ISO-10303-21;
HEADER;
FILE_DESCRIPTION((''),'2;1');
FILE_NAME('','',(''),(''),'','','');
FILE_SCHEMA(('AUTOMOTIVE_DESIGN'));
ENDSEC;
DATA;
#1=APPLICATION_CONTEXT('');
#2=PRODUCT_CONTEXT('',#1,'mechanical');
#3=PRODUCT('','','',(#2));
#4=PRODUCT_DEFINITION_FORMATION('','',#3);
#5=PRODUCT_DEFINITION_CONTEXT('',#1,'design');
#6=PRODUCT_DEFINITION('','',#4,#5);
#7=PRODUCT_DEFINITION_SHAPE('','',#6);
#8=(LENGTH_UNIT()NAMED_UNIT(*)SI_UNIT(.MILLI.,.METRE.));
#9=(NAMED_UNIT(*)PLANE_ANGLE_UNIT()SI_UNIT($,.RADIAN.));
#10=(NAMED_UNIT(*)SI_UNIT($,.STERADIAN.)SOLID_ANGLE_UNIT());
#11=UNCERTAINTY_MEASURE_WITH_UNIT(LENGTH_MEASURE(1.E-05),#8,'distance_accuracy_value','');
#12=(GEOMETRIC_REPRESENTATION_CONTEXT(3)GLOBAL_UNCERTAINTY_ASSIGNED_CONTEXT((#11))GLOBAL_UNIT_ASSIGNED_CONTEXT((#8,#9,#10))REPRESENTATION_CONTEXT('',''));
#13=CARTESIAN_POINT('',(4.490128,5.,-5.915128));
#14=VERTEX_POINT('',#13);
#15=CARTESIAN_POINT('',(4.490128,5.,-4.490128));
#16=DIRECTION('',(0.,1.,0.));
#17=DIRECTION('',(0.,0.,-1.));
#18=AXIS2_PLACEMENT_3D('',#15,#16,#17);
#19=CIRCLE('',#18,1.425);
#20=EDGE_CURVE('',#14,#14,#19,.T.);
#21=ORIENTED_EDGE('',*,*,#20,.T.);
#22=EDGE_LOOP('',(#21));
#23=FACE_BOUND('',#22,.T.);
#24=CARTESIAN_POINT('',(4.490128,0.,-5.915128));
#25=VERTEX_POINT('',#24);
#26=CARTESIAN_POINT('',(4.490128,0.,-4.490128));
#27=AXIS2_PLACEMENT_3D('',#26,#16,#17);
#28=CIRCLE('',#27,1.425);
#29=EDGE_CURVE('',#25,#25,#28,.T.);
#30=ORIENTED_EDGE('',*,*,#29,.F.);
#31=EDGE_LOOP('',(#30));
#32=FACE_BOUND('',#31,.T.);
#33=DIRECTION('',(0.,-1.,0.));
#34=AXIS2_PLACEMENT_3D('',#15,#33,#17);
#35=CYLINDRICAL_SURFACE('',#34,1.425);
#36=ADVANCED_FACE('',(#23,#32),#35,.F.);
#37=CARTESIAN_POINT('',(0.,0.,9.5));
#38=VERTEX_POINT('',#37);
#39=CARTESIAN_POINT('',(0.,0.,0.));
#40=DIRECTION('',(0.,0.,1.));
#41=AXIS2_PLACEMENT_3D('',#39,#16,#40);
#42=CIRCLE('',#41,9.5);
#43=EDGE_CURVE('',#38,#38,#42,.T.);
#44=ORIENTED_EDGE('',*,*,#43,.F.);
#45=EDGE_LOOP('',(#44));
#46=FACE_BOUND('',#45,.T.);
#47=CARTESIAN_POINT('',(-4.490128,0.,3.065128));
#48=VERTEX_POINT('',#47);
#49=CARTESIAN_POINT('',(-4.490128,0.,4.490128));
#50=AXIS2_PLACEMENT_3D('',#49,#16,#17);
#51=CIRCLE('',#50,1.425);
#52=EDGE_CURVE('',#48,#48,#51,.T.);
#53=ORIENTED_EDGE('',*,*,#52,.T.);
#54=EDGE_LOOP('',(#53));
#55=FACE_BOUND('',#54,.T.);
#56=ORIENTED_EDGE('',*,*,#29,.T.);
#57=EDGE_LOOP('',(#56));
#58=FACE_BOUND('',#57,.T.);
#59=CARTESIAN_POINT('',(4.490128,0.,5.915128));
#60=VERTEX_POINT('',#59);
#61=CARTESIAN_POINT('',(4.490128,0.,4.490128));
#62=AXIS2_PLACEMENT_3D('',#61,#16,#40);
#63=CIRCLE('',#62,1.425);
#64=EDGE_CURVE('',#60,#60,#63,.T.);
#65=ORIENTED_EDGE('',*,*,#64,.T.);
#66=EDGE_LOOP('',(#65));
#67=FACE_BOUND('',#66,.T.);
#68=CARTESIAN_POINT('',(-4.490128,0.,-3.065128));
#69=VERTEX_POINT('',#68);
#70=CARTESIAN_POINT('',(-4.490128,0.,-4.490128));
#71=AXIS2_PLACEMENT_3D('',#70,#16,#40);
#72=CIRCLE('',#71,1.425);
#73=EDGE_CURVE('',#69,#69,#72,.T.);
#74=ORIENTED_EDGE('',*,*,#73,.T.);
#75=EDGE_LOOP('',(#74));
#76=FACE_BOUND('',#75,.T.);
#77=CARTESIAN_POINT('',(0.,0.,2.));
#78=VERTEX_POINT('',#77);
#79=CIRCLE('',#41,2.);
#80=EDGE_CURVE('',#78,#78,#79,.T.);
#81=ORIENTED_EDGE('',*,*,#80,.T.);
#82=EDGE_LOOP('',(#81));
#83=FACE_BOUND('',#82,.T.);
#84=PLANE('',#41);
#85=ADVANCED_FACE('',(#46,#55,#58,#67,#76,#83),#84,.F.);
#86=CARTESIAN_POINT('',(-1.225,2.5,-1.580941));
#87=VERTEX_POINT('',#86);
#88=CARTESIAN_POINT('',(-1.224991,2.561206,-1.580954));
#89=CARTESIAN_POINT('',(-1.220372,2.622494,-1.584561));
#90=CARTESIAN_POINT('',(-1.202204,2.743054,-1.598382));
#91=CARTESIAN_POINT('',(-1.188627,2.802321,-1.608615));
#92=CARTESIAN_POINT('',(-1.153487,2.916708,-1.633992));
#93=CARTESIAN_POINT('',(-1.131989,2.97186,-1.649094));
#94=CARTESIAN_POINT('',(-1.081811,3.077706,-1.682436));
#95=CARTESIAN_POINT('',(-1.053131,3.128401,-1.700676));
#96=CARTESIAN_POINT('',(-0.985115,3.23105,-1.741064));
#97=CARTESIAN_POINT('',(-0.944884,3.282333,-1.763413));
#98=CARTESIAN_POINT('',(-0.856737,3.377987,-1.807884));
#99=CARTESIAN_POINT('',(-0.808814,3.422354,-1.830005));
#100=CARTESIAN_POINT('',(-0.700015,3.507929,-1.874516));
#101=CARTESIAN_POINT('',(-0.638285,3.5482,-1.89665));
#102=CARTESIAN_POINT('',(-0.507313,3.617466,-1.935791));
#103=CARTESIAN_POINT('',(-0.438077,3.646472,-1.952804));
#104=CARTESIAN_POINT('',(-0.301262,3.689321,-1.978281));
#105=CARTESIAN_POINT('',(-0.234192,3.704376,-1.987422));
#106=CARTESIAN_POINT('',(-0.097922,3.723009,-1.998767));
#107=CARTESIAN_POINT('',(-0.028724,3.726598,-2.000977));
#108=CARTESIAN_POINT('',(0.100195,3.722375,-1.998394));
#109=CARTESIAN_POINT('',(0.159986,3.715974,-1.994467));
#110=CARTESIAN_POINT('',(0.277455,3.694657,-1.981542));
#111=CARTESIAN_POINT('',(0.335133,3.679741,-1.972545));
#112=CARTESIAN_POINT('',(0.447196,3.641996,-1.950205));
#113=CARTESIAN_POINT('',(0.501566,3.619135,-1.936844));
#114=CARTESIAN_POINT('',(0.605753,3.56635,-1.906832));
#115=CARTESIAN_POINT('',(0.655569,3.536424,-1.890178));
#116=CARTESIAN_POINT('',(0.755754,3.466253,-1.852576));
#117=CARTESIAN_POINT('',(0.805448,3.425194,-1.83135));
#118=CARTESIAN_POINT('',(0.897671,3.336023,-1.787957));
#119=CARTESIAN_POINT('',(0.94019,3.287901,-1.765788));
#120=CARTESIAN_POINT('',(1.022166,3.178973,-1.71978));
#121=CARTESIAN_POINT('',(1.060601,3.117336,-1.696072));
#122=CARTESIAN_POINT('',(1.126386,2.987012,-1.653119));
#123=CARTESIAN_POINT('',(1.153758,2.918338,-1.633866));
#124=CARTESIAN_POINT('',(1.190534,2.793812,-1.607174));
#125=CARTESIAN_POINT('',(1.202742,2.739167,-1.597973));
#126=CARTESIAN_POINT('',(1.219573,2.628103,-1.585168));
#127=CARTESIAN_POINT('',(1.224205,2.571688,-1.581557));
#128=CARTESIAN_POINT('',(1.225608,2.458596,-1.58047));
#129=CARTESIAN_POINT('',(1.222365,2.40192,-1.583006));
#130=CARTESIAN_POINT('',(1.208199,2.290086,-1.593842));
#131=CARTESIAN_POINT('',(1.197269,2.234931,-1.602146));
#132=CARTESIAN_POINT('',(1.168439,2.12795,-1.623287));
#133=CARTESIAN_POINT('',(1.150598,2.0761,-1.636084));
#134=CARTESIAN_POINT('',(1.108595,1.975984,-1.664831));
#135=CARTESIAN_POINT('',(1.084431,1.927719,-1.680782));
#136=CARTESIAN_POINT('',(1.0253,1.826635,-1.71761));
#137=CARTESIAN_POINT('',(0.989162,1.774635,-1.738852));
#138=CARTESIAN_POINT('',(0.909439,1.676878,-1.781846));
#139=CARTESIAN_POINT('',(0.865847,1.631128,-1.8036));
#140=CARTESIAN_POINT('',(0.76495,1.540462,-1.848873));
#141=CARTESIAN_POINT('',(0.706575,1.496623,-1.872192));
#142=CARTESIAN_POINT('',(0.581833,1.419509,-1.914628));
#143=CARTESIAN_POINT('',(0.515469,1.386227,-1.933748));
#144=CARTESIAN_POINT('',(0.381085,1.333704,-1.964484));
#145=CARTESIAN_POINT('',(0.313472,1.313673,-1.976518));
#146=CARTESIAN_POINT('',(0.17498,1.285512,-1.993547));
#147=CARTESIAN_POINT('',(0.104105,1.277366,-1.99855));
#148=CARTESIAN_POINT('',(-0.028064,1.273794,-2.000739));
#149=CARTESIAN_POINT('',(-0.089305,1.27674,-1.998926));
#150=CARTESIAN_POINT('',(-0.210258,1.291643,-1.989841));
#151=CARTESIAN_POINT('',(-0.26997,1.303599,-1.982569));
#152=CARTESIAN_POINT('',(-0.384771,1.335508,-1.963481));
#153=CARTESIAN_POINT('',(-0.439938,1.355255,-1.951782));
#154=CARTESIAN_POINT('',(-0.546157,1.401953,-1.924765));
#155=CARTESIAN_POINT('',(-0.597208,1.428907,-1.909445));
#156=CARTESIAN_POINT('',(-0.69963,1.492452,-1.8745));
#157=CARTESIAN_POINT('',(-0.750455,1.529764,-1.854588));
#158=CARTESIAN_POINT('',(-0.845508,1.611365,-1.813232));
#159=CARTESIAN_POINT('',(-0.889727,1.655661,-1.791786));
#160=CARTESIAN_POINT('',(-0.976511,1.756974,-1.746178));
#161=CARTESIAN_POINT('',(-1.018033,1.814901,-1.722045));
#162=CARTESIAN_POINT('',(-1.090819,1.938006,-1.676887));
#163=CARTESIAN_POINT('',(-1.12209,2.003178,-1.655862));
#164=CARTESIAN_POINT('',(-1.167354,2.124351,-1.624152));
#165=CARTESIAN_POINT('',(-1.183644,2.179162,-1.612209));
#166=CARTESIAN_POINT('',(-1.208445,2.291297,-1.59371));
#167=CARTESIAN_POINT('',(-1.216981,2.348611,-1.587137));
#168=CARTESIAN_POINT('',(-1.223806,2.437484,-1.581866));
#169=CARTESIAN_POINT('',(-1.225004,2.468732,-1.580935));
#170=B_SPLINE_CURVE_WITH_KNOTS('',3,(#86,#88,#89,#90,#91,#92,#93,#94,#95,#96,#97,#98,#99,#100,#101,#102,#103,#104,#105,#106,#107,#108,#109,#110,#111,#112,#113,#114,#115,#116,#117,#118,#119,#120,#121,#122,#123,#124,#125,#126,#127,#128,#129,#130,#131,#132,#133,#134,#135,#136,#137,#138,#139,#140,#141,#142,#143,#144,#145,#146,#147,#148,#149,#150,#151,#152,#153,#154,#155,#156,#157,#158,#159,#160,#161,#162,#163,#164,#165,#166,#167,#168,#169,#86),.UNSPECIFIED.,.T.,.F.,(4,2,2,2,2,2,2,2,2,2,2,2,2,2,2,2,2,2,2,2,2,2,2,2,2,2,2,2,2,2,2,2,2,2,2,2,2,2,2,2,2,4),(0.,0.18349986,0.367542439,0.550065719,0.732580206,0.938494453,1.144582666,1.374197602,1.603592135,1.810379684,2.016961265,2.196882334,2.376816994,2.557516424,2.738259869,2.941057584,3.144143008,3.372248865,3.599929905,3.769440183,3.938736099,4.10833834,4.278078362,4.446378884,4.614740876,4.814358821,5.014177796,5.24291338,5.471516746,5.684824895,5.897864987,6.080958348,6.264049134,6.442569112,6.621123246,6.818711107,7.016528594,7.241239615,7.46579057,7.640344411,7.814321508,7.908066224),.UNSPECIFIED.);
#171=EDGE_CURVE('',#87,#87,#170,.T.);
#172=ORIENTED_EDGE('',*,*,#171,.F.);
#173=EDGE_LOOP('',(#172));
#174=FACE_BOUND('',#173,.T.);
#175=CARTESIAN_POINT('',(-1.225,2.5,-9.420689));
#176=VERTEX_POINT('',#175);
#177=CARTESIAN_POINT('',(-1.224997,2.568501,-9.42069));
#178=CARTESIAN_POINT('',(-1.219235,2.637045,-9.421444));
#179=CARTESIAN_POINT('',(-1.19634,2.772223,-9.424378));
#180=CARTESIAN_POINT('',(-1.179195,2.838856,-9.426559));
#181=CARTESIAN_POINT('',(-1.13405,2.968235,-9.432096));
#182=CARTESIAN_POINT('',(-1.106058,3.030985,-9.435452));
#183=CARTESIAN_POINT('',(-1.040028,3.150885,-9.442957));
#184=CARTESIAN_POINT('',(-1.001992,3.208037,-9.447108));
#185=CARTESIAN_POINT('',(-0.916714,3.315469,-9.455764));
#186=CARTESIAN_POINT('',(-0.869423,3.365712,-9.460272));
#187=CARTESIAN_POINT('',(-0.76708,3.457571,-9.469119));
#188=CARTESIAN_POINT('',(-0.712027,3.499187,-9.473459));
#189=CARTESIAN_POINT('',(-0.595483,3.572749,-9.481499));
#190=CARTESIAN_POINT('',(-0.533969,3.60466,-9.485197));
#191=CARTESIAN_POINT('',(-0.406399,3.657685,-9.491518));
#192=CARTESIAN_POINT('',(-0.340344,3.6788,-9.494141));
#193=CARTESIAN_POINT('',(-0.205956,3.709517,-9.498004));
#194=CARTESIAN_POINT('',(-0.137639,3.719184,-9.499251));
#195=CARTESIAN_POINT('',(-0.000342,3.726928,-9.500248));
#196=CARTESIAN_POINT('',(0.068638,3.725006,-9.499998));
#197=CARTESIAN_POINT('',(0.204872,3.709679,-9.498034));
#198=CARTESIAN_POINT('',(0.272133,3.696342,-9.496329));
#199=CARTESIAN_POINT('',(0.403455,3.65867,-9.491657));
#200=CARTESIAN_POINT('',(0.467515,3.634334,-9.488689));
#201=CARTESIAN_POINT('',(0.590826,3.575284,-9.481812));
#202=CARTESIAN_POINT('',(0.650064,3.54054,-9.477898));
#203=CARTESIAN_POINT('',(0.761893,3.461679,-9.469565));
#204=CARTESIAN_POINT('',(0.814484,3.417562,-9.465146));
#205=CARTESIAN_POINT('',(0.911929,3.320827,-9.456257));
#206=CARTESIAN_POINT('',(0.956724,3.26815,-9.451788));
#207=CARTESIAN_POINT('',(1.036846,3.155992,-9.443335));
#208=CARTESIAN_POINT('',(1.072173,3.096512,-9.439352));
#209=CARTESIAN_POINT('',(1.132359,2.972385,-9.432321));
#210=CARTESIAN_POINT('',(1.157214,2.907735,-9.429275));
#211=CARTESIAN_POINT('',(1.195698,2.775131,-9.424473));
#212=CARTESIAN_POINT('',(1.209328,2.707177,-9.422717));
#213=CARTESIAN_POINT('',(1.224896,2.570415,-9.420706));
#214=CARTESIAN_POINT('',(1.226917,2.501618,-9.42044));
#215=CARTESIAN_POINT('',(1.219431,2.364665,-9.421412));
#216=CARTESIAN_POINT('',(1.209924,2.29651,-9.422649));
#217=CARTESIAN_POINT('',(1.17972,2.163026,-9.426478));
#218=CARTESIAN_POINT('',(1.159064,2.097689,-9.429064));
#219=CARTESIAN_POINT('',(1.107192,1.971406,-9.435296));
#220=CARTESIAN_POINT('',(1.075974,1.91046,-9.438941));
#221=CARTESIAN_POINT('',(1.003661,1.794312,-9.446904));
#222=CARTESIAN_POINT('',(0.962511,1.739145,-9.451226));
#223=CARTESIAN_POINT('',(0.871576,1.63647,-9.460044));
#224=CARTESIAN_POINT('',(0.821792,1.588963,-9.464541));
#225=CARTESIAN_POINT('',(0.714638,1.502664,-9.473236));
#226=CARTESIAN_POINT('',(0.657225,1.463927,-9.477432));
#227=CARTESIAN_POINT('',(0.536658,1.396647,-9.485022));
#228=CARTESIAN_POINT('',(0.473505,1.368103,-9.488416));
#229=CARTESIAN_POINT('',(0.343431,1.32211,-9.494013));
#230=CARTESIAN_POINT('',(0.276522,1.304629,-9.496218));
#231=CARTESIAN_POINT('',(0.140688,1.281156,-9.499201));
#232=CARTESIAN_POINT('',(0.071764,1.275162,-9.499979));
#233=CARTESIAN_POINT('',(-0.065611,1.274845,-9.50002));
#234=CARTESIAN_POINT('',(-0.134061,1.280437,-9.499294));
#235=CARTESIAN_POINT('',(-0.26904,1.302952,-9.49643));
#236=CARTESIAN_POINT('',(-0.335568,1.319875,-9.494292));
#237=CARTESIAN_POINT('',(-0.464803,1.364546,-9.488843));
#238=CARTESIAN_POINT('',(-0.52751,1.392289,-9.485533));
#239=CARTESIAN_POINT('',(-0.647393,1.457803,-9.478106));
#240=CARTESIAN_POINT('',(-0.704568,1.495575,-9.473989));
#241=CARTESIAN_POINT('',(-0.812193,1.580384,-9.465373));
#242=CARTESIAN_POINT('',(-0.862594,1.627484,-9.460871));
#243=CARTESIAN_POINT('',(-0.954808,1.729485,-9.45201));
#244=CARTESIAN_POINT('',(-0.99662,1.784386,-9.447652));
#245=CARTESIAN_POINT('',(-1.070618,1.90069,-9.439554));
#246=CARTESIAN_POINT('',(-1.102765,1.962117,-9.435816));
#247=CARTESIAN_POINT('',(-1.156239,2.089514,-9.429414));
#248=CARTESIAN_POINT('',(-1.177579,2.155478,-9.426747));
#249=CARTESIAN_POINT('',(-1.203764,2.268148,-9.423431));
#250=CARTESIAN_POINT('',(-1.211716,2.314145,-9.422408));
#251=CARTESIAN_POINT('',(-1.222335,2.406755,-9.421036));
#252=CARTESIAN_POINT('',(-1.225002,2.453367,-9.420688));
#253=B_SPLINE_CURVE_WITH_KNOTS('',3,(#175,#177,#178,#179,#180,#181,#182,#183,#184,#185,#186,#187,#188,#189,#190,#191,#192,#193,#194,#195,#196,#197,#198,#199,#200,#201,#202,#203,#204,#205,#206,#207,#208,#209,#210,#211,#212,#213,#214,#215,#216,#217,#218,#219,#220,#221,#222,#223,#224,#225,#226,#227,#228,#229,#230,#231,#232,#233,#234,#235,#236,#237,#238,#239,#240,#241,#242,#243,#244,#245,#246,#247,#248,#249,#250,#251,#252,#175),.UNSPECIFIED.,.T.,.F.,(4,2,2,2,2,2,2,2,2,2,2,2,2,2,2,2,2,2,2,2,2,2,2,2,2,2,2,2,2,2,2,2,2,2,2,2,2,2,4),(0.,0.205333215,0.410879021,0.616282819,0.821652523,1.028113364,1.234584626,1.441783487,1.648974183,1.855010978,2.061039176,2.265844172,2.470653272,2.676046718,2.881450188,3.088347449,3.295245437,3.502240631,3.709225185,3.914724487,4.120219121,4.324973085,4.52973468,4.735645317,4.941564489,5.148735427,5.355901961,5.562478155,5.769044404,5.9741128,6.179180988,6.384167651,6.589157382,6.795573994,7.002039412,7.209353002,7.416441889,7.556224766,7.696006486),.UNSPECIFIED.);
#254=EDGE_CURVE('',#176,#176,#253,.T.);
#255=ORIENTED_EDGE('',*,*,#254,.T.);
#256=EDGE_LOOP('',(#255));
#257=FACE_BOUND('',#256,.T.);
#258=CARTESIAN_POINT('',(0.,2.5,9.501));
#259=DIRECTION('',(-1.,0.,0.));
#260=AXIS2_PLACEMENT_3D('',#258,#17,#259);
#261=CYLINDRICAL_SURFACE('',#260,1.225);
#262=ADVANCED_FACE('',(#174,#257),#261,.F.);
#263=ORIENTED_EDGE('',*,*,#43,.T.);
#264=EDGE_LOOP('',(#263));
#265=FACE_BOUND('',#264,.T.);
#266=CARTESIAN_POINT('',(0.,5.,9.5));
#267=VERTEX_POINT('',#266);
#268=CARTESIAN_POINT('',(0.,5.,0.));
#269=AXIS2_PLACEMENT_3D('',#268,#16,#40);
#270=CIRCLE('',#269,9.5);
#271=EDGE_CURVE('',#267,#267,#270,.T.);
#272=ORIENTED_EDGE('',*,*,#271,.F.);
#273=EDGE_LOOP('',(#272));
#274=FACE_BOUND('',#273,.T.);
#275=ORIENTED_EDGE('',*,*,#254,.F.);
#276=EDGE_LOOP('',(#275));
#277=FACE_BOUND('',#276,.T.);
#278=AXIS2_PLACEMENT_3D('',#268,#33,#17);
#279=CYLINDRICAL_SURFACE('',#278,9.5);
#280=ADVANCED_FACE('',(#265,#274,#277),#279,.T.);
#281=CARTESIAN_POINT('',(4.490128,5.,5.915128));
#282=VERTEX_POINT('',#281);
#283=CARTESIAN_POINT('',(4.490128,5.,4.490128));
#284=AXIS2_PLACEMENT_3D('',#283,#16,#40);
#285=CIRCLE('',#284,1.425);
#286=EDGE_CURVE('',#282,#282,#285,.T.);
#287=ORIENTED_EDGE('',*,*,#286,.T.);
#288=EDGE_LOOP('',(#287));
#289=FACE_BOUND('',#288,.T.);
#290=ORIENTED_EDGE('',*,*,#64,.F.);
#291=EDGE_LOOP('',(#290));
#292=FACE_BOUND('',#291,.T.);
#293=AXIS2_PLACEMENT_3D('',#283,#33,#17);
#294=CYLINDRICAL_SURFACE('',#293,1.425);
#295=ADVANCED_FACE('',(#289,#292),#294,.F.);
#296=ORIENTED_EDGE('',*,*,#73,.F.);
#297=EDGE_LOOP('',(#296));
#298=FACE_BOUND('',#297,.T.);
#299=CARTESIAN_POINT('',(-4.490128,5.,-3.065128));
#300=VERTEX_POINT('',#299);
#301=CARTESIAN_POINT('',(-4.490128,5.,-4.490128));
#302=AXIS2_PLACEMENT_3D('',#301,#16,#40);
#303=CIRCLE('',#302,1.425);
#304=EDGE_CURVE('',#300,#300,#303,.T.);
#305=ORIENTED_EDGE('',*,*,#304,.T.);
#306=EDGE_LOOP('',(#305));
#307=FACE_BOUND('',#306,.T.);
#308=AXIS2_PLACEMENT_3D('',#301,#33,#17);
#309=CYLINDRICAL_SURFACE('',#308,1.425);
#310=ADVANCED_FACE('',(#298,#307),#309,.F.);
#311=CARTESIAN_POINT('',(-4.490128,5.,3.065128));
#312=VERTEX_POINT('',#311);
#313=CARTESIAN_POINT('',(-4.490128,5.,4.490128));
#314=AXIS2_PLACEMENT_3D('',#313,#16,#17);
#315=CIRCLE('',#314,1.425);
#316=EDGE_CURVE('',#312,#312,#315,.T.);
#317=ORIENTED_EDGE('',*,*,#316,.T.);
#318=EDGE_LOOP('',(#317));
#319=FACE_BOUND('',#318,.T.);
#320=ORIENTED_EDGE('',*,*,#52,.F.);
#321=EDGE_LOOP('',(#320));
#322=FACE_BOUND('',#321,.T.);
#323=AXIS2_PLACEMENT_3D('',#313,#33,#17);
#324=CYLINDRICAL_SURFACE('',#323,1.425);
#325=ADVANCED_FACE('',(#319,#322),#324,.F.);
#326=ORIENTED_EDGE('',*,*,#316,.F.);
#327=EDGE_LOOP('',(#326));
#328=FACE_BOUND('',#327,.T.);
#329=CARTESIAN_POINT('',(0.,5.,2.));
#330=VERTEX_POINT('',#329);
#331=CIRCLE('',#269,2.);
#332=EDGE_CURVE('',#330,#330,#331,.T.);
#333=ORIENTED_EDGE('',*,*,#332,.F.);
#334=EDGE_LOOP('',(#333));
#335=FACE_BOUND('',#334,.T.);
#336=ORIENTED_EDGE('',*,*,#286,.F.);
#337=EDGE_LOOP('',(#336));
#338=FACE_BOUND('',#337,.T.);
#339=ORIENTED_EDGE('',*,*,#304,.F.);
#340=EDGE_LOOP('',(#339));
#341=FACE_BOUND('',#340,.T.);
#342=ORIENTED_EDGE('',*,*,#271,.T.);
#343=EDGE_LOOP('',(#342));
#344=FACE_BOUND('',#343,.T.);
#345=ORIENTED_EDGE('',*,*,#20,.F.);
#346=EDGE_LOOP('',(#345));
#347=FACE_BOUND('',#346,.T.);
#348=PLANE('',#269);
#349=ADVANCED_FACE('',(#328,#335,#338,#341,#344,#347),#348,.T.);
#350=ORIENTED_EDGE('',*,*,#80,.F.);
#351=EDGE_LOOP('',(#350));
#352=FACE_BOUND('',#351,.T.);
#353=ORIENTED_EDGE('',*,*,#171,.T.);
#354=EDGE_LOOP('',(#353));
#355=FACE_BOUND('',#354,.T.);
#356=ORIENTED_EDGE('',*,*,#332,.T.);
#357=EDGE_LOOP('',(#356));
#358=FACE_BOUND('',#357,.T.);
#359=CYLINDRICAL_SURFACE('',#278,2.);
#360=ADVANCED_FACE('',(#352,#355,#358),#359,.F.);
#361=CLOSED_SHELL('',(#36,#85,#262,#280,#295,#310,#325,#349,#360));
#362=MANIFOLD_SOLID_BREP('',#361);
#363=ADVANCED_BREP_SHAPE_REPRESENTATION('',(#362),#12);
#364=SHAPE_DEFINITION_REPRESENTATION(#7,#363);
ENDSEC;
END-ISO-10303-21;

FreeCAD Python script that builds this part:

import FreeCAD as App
import Part
import Sketcher

doc = App.newDocument("Part")
params = doc.addObject("Spreadsheet::Sheet", "Params")
for row, (alias, value) in enumerate([
    ("sketch1_diameter", "19 mm"),
    ("sketch1_diameter2", "4 mm"),
    ("sketch1_diameter3", "2.85 mm"),
    ("pad1_length", "5 mm"),
    ("sketch2_diameter", "2.45 mm"),
    ("pocket1_length", "7.919059 mm"),
], start=1):
    params.set(f"A{row}", alias)
    params.set(f"B{row}", "=" + value)
    params.setAlias(f"B{row}", alias)

body = doc.addObject("PartDesign::Body", "Body")

# Sketch on XZ plane
sketch1 = body.newObject("Sketcher::SketchObject", "Sketch")
sketch1.AttachmentSupport = (doc.getObject("XZ_Plane"), [""])
sketch1.MapMode = "FlatFace"
sketch1.addGeometry([
    Part.Circle(App.Vector(0, 0, 0), App.Vector(0, 0, 1), 9.5),  # 0
    Part.Circle(App.Vector(-4.5, 4.5, 0), App.Vector(0, 0, 1), 1.4),  # 1
    Part.Circle(App.Vector(4.5, 4.5, 0), App.Vector(0, 0, 1), 1.4),  # 2
    Part.Circle(App.Vector(-4.5, -4.5, 0), App.Vector(0, 0, 1), 1.4),  # 3
    Part.Circle(App.Vector(0, 0, 0), App.Vector(0, 0, 1), 2),  # 4
    Part.Circle(App.Vector(4.5, -4.5, 0), App.Vector(0, 0, 1), 1.4),  # 5
], False)
sketch1.addConstraint([
    Sketcher.Constraint("Coincident", 0, 3, -1, 1),
    Sketcher.Constraint("Coincident", 4, 3, -1, 1),
    Sketcher.Constraint("Equal", 1, 2),
    Sketcher.Constraint("Equal", 2, 3),
    Sketcher.Constraint("Equal", 3, 5),
    Sketcher.Constraint("Symmetric", 2, 3, 3, 3, -1, 1),
    Sketcher.Constraint("Symmetric", 1, 3, 5, 3, -1, 1),
    Sketcher.Constraint("Symmetric", 1, 3, 2, 3, -2),
    Sketcher.Constraint("Diameter", 0, 19.0),
    Sketcher.Constraint("Diameter", 4, 4.0),
    Sketcher.Constraint("Diameter", 1, 2.85),
    Sketcher.Constraint("DistanceX", 1, 3, -1, 1, 4.490128),
    Sketcher.Constraint("DistanceY", -1, 1, 1, 3, 4.490128),
])
sketch1.setExpression("Constraints[8]", "Params.sketch1_diameter")
sketch1.setExpression("Constraints[9]", "Params.sketch1_diameter2")
sketch1.setExpression("Constraints[10]", "Params.sketch1_diameter3")
pad1 = body.newObject("PartDesign::Pad", "Pad")
pad1.Profile = sketch1
pad1.setExpression("Length", "Params.pad1_length")
pad1.Reversed = True

# Sketch on XY plane
sketch2 = body.newObject("Sketcher::SketchObject", "Sketch001")
sketch2.AttachmentSupport = (doc.getObject("XY_Plane"), [""])
sketch2.MapMode = "FlatFace"
sketch2.AttachmentOffset = App.Placement(App.Vector(0, 0, -9.5), App.Rotation())
sketch2.addGeometry(Part.Circle(App.Vector(0, 2.5, 0), App.Vector(0, 0, 1), 1.2), False)
sketch2.addConstraint([
    Sketcher.Constraint("PointOnObject", 0, 3, -2),
    Sketcher.Constraint("Diameter", 0, 2.45),
    Sketcher.Constraint("DistanceY", -1, 1, 0, 3, 2.5),
])
sketch2.setExpression("Constraints[1]", "Params.sketch2_diameter")
pocket1 = body.newObject("PartDesign::Pocket", "Pocket")
pocket1.Profile = sketch2
pocket1.setExpression("Length", "Params.pocket1_length")
pocket1.Reversed = True

doc.recompute()
